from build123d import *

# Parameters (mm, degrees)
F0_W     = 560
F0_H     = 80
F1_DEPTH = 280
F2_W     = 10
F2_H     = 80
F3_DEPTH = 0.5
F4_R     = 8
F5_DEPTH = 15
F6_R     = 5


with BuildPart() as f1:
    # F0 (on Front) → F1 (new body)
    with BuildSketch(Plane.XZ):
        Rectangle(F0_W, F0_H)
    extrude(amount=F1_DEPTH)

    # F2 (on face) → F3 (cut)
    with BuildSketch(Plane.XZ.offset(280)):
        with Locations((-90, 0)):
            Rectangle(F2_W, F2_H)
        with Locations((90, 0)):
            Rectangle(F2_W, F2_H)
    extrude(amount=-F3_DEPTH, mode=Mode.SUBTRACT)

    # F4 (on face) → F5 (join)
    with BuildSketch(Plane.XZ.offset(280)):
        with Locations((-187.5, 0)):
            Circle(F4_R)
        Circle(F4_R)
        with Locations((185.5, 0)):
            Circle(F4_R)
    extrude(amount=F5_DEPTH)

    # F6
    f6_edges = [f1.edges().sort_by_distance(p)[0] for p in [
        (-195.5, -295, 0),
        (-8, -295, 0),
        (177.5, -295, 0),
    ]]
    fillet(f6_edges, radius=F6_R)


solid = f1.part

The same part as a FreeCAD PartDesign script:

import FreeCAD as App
import Part
import Sketcher

V = App.Vector


def edges_at(feature, points):
    """Names of the edges that pass closest to the given points."""
    edges = feature.Shape.Edges
    near = lambda p: min(range(len(edges)), key=lambda i: edges[i].distToShape(Part.Vertex(*p))[0])
    return sorted({f"Edge{near(p) + 1}" for p in points})


def add_polygon(sketch, points):
    """Adds a closed chain of lines whose ends are joined by coincident constraints."""
    first, n = sketch.GeometryCount, len(points)
    for a, b in zip(points, points[1:] + points[:1]):
        sketch.addGeometry(Part.LineSegment(App.Vector(*a, 0), App.Vector(*b, 0)), False)
    for i in range(n):
        sketch.addConstraint(Sketcher.Constraint("Coincident", first + i, 2, first + (i + 1) % n, 1))

doc = App.newDocument("Part")
params = doc.addObject("Spreadsheet::Sheet", "Params")
for row, (alias, value) in enumerate([
    ("sketch1_width", "560 mm"),
    ("sketch1_height", "80 mm"),
    ("pad1_length", "280 mm"),
    ("sketch2_width", "10 mm"),
    ("sketch2_height", "80 mm"),
    ("pocket1_length", "0.5 mm"),
    ("sketch3_diameter", "16 mm"),
    ("pad2_length", "15 mm"),
    ("fillet_radius", "5 mm"),
], start=1):
    params.set(f"A{row}", alias)
    params.set(f"B{row}", "=" + value)
    params.setAlias(f"B{row}", alias)

body = doc.addObject("PartDesign::Body", "Body")

# Sketch on XZ plane
sketch1 = doc.addObject("Sketcher::SketchObject", "Sketch")
body.addObject(sketch1)
sketch1.AttachmentSupport = (doc.XZ_Plane, [""])
sketch1.MapMode = "FlatFace"
add_polygon(sketch1, [(-280, 40), (-280, -40), (280, -40), (280, 40)])  # lines 0-3
sketch1.addConstraint([
    Sketcher.Constraint("Vertical", 0),
    Sketcher.Constraint("Horizontal", 1),
    Sketcher.Constraint("Vertical", 2),
    Sketcher.Constraint("Horizontal", 3),
    Sketcher.Constraint("Symmetric", 0, 2, 2, 2, -1, 1),
    Sketcher.Constraint("DistanceX", 1, 1, 1, 2, 560.0),
    Sketcher.Constraint("DistanceY", 0, 2, 0, 1, 80.0),
])
sketch1.setExpression("Constraints[9]", "Params.sketch1_width")
sketch1.setExpression("Constraints[10]", "Params.sketch1_height")
pad1 = doc.addObject("PartDesign::Pad", "Pad")
body.addObject(pad1)
pad1.Profile = sketch1
pad1.setExpression("Length", "Params.pad1_length")

# Sketch on XZ plane
sketch2 = doc.addObject("Sketcher::SketchObject", "Sketch001")
body.addObject(sketch2)
sketch2.AttachmentSupport = (doc.XZ_Plane, [""])
sketch2.MapMode = "FlatFace"
sketch2.AttachmentOffset = App.Placement(V(0, 0, 280), App.Rotation())
add_polygon(sketch2, [(-95, 40), (-95, -40), (-85, -40), (-85, 40)])  # lines 0-3
add_polygon(sketch2, [(85, 40), (85, -40), (95, -40), (95, 40)])  # lines 4-7
sketch2.addConstraint([
    Sketcher.Constraint("Vertical", 0),
    Sketcher.Constraint("Horizontal", 1),
    Sketcher.Constraint("Vertical", 2),
    Sketcher.Constraint("Horizontal", 3),
    Sketcher.Constraint("Vertical", 4),
    Sketcher.Constraint("Horizontal", 5),
    Sketcher.Constraint("Vertical", 6),
    Sketcher.Constraint("Horizontal", 7),
    Sketcher.Constraint("Symmetric", 2, 2, 4, 2, -1, 1),
    Sketcher.Constraint("Symmetric", 0, 2, 6, 2, -1, 1),
    Sketcher.Constraint("Horizontal", 1, 2, 4, 2),
    Sketcher.Constraint("DistanceX", 1, 1, 1, 2, 10.0),
    Sketcher.Constraint("DistanceY", 0, 2, 0, 1, 80.0),
    Sketcher.Constraint("DistanceX", 0, 2, -1, 1, 95.0),
])
sketch2.setExpression("Constraints[19]", "Params.sketch2_width")
sketch2.setExpression("Constraints[20]", "Params.sketch2_height")
pocket1 = doc.addObject("PartDesign::Pocket", "Pocket")
body.addObject(pocket1)
pocket1.Profile = sketch2
pocket1.setExpression("Length", "Params.pocket1_length")

# Sketch on XZ plane
sketch3 = doc.addObject("Sketcher::SketchObject", "Sketch002")
body.addObject(sketch3)
sketch3.AttachmentSupport = (doc.XZ_Plane, [""])
sketch3.MapMode = "FlatFace"
sketch3.AttachmentOffset = App.Placement(V(0, 0, 280), App.Rotation())
sketch3.addGeometry([
    Part.Circle(V(-188, 0, 0), V(0, 0, 1), 8),
    Part.Circle(V(0, 0, 0), V(0, 0, 1), 8),
    Part.Circle(V(186, 0, 0), V(0, 0, 1), 8),
], False)
sketch3.addConstraint([
    Sketcher.Constraint("Coincident", 1, 3, -1, 1),
    Sketcher.Constraint("Equal", 0, 1),
    Sketcher.Constraint("Equal", 1, 2),
    Sketcher.Constraint("PointOnObject", 0, 3, -1),
    Sketcher.Constraint("PointOnObject", 2, 3, -1),
    Sketcher.Constraint("Diameter", 0, 16.0),
    Sketcher.Constraint("DistanceX", 0, 3, 2, 3, 373.0),
    Sketcher.Constraint("DistanceX", 0, 3, -1, 1, 187.5),
])
sketch3.setExpression("Constraints[5]", "Params.sketch3_diameter")
pad2 = doc.addObject("PartDesign::Pad", "Pad001")
body.addObject(pad2)
pad2.Profile = sketch3
pad2.setExpression("Length", "Params.pad2_length")
doc.recompute()

fillet = doc.addObject("PartDesign::Fillet", "Fillet")
body.addObject(fillet)
fillet.Base = (pad2, edges_at(pad2, [(-195.5, -295, 0), (-8, -295, 0), (177.5, -295, 0)]))
fillet.setExpression("Radius", "Params.fillet_radius")

doc.recompute()
